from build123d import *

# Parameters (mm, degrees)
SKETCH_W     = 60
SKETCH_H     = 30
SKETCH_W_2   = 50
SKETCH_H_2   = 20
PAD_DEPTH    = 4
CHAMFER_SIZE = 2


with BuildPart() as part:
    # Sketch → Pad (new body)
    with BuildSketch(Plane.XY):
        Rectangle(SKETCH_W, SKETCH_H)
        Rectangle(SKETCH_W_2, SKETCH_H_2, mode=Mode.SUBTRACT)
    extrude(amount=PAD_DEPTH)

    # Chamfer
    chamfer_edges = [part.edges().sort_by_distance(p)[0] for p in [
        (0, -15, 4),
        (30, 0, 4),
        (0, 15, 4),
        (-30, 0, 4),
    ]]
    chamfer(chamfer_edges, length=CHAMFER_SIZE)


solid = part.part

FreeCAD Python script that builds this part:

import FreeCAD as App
import Part
import Sketcher
Q = App.Units.Quantity


def edges_at(feature, points):
    """Names of the edges that pass closest to the given points."""
    edges = feature.Shape.Edges
    near = lambda p: min(range(len(edges)), key=lambda i: edges[i].distToShape(Part.Vertex(*p))[0])
    return sorted({f"Edge{near(p) + 1}" for p in points})


def add_polygon(sketch, points):
    """Adds a closed chain of lines whose ends are joined by coincident constraints."""
    first, n = sketch.GeometryCount, len(points)
    for a, b in zip(points, points[1:] + points[:1]):
        sketch.addGeometry(Part.LineSegment(App.Vector(*a, 0), App.Vector(*b, 0)), False)
    for i in range(n):
        sketch.addConstraint(Sketcher.Constraint("Coincident", first + i, 2, first + (i + 1) % n, 1))

doc = App.newDocument("Part")
body = doc.addObject("PartDesign::Body", "Body")

sketch1 = body.newObject("Sketcher::SketchObject", "Sketch")
sketch1.AttachmentSupport = (doc.getObject("XY_Plane"), [""])
sketch1.MapMode = "FlatFace"
add_polygon(sketch1, [(-30, 15), (-30, -15), (30, -15), (30, 15)])
add_polygon(sketch1, [(25, -10), (-25, -10), (-25, 10), (25, 10)])
sketch1.addConstraint(Sketcher.Constraint("Vertical", 0))
sketch1.addConstraint(Sketcher.Constraint("Horizontal", 1))
sketch1.addConstraint(Sketcher.Constraint("Vertical", 2))
sketch1.addConstraint(Sketcher.Constraint("Horizontal", 3))
sketch1.addConstraint(Sketcher.Constraint("Horizontal", 4))
sketch1.addConstraint(Sketcher.Constraint("Vertical", 5))
sketch1.addConstraint(Sketcher.Constraint("Horizontal", 6))
sketch1.addConstraint(Sketcher.Constraint("Vertical", 7))
sketch1.addConstraint(Sketcher.Constraint("Symmetric", 0, 2, 2, 2, -1, 1))
sketch1.addConstraint(Sketcher.Constraint("Symmetric", 4, 2, 6, 2, -1, 1))
sketch1.addConstraint(Sketcher.Constraint("DistanceX", 1, 1, 1, 2, Q("60 mm")))
sketch1.addConstraint(Sketcher.Constraint("DistanceX", 4, 2, 4, 1, Q("50 mm")))
sketch1.addConstraint(Sketcher.Constraint("DistanceY", 0, 2, 0, 1, Q("30 mm")))
sketch1.addConstraint(Sketcher.Constraint("DistanceY", 5, 1, 5, 2, Q("20 mm")))
pad1 = body.newObject("PartDesign::Pad", "Pad")
pad1.Profile = sketch1
pad1.Length = 4
doc.recompute()

chamfer = body.newObject("PartDesign::Chamfer", "Chamfer")
chamfer.Base = (pad1, edges_at(pad1, [
    (0, -15, 4),
    (30, 0, 4),
    (0, 15, 4),
    (-30, 0, 4),
]))
chamfer.Size = 2

doc.recompute()
